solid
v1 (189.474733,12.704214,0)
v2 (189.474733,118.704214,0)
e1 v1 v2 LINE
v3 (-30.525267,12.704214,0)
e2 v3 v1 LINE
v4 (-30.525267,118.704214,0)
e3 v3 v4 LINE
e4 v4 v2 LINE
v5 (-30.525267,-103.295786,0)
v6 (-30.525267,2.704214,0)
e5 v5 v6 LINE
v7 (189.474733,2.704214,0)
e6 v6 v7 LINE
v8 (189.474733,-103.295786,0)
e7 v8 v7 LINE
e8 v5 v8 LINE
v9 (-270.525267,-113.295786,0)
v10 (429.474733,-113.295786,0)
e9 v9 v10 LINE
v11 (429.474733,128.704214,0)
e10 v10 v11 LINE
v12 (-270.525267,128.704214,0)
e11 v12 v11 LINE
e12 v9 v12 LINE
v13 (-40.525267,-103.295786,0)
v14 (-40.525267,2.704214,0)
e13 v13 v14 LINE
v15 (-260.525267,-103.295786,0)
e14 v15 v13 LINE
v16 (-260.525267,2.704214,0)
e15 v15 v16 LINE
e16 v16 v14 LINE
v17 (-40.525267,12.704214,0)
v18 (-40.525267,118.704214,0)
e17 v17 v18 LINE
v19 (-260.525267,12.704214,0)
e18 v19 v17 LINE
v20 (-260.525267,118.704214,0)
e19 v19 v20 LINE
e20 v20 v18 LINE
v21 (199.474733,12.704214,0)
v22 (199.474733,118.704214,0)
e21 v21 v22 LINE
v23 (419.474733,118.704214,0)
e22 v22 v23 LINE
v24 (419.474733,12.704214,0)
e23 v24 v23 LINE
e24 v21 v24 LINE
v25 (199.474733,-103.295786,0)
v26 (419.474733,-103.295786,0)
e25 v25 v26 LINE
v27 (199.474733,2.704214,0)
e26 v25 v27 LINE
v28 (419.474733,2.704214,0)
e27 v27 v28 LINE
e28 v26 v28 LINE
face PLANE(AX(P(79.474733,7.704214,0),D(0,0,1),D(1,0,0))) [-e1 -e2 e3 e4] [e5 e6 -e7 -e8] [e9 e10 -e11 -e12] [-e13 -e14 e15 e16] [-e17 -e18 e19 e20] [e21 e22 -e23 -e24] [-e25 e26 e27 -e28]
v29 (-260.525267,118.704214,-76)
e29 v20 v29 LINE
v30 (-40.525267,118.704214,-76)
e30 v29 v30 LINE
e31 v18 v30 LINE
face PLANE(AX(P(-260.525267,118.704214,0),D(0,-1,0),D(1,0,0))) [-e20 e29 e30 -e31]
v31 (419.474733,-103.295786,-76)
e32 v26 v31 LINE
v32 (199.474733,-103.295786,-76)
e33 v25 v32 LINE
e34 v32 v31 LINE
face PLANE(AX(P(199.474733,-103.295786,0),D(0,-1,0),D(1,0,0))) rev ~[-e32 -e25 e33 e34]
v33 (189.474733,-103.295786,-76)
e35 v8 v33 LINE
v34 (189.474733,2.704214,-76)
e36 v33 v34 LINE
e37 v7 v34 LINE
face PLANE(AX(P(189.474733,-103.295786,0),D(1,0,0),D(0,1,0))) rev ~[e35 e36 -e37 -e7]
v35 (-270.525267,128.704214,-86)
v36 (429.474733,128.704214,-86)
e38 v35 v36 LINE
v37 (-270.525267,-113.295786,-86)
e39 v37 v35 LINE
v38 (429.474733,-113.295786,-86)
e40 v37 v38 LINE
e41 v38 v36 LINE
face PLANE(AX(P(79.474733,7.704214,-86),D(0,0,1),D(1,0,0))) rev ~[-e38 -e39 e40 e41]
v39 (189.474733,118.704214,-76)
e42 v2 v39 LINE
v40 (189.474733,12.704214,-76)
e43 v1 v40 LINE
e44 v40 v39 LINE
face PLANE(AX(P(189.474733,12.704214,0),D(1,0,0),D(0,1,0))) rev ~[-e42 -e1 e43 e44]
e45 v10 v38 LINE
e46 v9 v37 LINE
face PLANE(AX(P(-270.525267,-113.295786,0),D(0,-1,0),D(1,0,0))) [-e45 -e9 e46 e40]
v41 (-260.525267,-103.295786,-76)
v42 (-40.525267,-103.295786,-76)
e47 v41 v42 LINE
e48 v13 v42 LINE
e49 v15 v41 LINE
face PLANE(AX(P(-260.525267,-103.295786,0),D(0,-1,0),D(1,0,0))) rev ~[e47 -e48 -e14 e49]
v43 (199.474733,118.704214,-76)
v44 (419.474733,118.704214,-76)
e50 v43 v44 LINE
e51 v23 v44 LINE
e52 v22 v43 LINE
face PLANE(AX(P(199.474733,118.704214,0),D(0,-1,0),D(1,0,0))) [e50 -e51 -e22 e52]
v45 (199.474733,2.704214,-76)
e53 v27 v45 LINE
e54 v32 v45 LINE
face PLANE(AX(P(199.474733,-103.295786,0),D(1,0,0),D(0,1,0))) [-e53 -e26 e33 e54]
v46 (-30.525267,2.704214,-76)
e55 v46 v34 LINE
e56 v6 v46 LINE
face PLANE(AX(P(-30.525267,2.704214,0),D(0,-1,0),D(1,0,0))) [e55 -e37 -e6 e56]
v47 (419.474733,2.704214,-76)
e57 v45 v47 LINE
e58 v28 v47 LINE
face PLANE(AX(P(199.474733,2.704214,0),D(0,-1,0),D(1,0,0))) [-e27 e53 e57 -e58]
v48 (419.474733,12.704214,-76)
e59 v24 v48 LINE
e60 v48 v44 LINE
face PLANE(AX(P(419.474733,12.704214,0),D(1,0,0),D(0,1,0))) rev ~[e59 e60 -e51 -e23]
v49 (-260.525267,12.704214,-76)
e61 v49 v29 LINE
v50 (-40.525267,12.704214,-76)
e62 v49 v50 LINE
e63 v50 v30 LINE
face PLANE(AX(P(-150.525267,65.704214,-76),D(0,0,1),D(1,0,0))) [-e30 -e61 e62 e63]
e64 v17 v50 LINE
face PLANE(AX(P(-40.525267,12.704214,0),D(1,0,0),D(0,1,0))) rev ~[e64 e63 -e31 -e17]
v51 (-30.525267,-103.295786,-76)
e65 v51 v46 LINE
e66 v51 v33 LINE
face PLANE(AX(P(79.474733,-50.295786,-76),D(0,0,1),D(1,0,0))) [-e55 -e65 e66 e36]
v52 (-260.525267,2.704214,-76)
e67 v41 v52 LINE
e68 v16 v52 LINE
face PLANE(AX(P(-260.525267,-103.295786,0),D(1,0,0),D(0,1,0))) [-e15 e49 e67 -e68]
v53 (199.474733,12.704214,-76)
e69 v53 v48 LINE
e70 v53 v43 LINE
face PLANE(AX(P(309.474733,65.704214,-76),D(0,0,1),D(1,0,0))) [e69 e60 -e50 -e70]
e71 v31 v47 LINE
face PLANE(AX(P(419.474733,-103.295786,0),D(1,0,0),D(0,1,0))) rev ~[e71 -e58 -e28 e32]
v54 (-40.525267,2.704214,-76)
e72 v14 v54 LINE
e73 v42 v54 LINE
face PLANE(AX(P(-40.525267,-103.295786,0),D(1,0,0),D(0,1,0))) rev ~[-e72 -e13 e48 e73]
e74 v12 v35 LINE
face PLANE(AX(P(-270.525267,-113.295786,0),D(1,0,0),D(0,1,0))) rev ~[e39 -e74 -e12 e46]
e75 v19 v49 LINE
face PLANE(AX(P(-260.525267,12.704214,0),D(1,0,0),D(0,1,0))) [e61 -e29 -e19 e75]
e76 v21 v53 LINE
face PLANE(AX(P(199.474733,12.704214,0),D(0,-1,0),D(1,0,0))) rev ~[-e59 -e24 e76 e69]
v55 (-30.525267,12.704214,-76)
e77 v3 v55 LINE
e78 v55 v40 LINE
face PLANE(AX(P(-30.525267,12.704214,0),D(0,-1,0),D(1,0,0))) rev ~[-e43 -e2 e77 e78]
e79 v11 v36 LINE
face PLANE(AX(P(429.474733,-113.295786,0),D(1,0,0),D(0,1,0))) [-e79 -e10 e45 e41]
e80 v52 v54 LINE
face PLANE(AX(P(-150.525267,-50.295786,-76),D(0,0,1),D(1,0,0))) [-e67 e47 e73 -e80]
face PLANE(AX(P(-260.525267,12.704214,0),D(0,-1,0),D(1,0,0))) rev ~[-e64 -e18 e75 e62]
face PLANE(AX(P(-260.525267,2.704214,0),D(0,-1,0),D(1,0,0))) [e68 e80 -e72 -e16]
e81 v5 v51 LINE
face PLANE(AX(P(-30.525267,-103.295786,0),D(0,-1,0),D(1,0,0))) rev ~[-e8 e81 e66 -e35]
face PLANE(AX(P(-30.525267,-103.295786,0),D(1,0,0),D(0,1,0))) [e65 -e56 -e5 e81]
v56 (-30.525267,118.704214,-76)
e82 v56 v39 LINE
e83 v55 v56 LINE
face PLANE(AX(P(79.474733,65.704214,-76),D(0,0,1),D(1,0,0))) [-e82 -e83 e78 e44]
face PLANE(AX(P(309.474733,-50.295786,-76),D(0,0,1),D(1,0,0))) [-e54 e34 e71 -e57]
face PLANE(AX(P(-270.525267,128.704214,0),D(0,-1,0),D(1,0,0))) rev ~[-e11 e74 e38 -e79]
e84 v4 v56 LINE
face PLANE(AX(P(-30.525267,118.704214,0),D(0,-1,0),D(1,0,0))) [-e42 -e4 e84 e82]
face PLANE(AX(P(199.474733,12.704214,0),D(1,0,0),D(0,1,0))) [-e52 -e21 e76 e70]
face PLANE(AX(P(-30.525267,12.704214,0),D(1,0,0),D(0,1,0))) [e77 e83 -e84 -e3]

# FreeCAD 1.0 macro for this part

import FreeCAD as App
import Part
import Sketcher

V = App.Vector

doc = App.newDocument("Part")
body = doc.addObject("PartDesign::Body", "Body")

# Sketch on XY plane
sketch1 = body.newObject("Sketcher::SketchObject", "Sketch")
sketch1.AttachmentSupport = (doc.getObject("XY_Plane"), [""])
sketch1.MapMode = "FlatFace"
sketch1.addGeometry([
    Part.LineSegment(V(-271, 129, 0), V(-271, -113, 0)),
    Part.LineSegment(V(-271, -113, 0), V(429, -113, 0)),
    Part.LineSegment(V(429, -113, 0), V(429, 129, 0)),
    Part.LineSegment(V(429, 129, 0), V(-271, 129, 0)),
], False)
sketch1.addConstraint([
    Sketcher.Constraint("Coincident", 0, 2, 1, 1),
    Sketcher.Constraint("Coincident", 1, 2, 2, 1),
    Sketcher.Constraint("Coincident", 2, 2, 3, 1),
    Sketcher.Constraint("Coincident", 3, 2, 0, 1),
    Sketcher.Constraint("Vertical", 0),
    Sketcher.Constraint("Horizontal", 1),
    Sketcher.Constraint("Vertical", 2),
    Sketcher.Constraint("Horizontal", 3),
    Sketcher.Constraint("DistanceX", 1, 1, 1, 2, 700.0),
    Sketcher.Constraint("DistanceY", 0, 2, 0, 1, 242.0),
    Sketcher.Constraint("DistanceX", 0, 2, -1, 1, 270.525267),
    Sketcher.Constraint("DistanceY", 0, 2, -1, 1, 113.295786),
])
pad1 = body.newObject("PartDesign::Pad", "Pad")
pad1.Profile = sketch1
pad1.Length = 86
pad1.Reversed = True

# Sketch on XY plane
sketch2 = body.newObject("Sketcher::SketchObject", "Sketch001")
sketch2.AttachmentSupport = (doc.getObject("XY_Plane"), [""])
sketch2.MapMode = "FlatFace"
sketch2.addGeometry([
    Part.LineSegment(V(-261, 119, 0), V(-261, 13, 0)),  # 0
    Part.LineSegment(V(-261, 13, 0), V(-41, 13, 0)),  # 1
    Part.LineSegment(V(-41, 13, 0), V(-41, 119, 0)),  # 2
    Part.LineSegment(V(-41, 119, 0), V(-261, 119, 0)),  # 3
    Part.LineSegment(V(-261, 3, 0), V(-261, -103, 0)),  # 4
    Part.LineSegment(V(-261, -103, 0), V(-41, -103, 0)),  # 5
    Part.LineSegment(V(-41, -103, 0), V(-41, 3, 0)),  # 6
    Part.LineSegment(V(-41, 3, 0), V(-261, 3, 0)),  # 7
    Part.LineSegment(V(-31, 119, 0), V(-31, 13, 0)),  # 8
    Part.LineSegment(V(-31, 13, 0), V(189, 13, 0)),  # 9
    Part.LineSegment(V(189, 13, 0), V(189, 119, 0)),  # 10
    Part.LineSegment(V(189, 119, 0), V(-31, 119, 0)),  # 11
    Part.LineSegment(V(-31, 3, 0), V(-31, -103, 0)),  # 12
    Part.LineSegment(V(-31, -103, 0), V(189, -103, 0)),  # 13
    Part.LineSegment(V(189, -103, 0), V(189, 3, 0)),  # 14
    Part.LineSegment(V(189, 3, 0), V(-31, 3, 0)),  # 15
    Part.LineSegment(V(199, 119, 0), V(199, 13, 0)),  # 16
    Part.LineSegment(V(199, 13, 0), V(419, 13, 0)),  # 17
    Part.LineSegment(V(419, 13, 0), V(419, 119, 0)),  # 18
    Part.LineSegment(V(419, 119, 0), V(199, 119, 0)),  # 19
    Part.LineSegment(V(199, 3, 0), V(199, -103, 0)),  # 20
    Part.LineSegment(V(199, -103, 0), V(419, -103, 0)),  # 21
    Part.LineSegment(V(419, -103, 0), V(419, 3, 0)),  # 22
    Part.LineSegment(V(419, 3, 0), V(199, 3, 0)),  # 23
], False)
sketch2.addConstraint([
    Sketcher.Constraint("Coincident", 0, 2, 1, 1),
    Sketcher.Constraint("Coincident", 1, 2, 2, 1),
    Sketcher.Constraint("Coincident", 2, 2, 3, 1),
    Sketcher.Constraint("Coincident", 3, 2, 0, 1),
    Sketcher.Constraint("Coincident", 4, 2, 5, 1),
    Sketcher.Constraint("Coincident", 5, 2, 6, 1),
    Sketcher.Constraint("Coincident", 6, 2, 7, 1),
    Sketcher.Constraint("Coincident", 7, 2, 4, 1),
    Sketcher.Constraint("Coincident", 8, 2, 9, 1),
    Sketcher.Constraint("Coincident", 9, 2, 10, 1),
    Sketcher.Constraint("Coincident", 10, 2, 11, 1),
    Sketcher.Constraint("Coincident", 11, 2, 8, 1),
    Sketcher.Constraint("Coincident", 12, 2, 13, 1),
    Sketcher.Constraint("Coincident", 13, 2, 14, 1),
    Sketcher.Constraint("Coincident", 14, 2, 15, 1),
    Sketcher.Constraint("Coincident", 15, 2, 12, 1),
    Sketcher.Constraint("Coincident", 16, 2, 17, 1),
    Sketcher.Constraint("Coincident", 17, 2, 18, 1),
    Sketcher.Constraint("Coincident", 18, 2, 19, 1),
    Sketcher.Constraint("Coincident", 19, 2, 16, 1),
    Sketcher.Constraint("Coincident", 20, 2, 21, 1),
    Sketcher.Constraint("Coincident", 21, 2, 22, 1),
    Sketcher.Constraint("Coincident", 22, 2, 23, 1),
    Sketcher.Constraint("Coincident", 23, 2, 20, 1),
    Sketcher.Constraint("Vertical", 0),
    Sketcher.Constraint("Horizontal", 1),
    Sketcher.Constraint("Vertical", 2),
    Sketcher.Constraint("Horizontal", 3),
    Sketcher.Constraint("Vertical", 4),
    Sketcher.Constraint("Horizontal", 5),
    Sketcher.Constraint("Vertical", 6),
    Sketcher.Constraint("Horizontal", 7),
    Sketcher.Constraint("Vertical", 8),
    Sketcher.Constraint("Horizontal", 9),
    Sketcher.Constraint("Vertical", 10),
    Sketcher.Constraint("Horizontal", 11),
    Sketcher.Constraint("Vertical", 12),
    Sketcher.Constraint("Horizontal", 13),
    Sketcher.Constraint("Vertical", 14),
    Sketcher.Constraint("Horizontal", 15),
    Sketcher.Constraint("Vertical", 16),
    Sketcher.Constraint("Horizontal", 17),
    Sketcher.Constraint("Vertical", 18),
    Sketcher.Constraint("Horizontal", 19),
    Sketcher.Constraint("Vertical", 20),
    Sketcher.Constraint("Horizontal", 21),
    Sketcher.Constraint("Vertical", 22),
    Sketcher.Constraint("Horizontal", 23),
    Sketcher.Constraint("Horizontal", 1, 2, 8, 2),
    Sketcher.Constraint("Horizontal", 3, 2, 10, 2),
    Sketcher.Constraint("Horizontal", 5, 2, 12, 2),
    Sketcher.Constraint("Horizontal", 7, 2, 14, 2),
    Sketcher.Constraint("Horizontal", 9, 2, 16, 2),
    Sketcher.Constraint("Horizontal", 11, 2, 18, 2),
    Sketcher.Constraint("Horizontal", 13, 2, 20, 2),
    Sketcher.Constraint("Horizontal", 15, 2, 22, 2),
    Sketcher.Constraint("Vertical", 3, 2, 4, 2),
    Sketcher.Constraint("Vertical", 2, 2, 5, 2),
    Sketcher.Constraint("Vertical", 11, 2, 12, 2),
    Sketcher.Constraint("Vertical", 10, 2, 13, 2),
    Sketcher.Constraint("Vertical", 19, 2, 20, 2),
    Sketcher.Constraint("Vertical", 18, 2, 21, 2),
    Sketcher.Constraint("Equal", 7, 9),
    Sketcher.Constraint("Equal", 15, 17),
    Sketcher.Constraint("Equal", 2, 4),
    Sketcher.Constraint("DistanceX", 1, 1, 1, 2, 220.0),
    Sketcher.Constraint("DistanceY", 0, 2, 0, 1, 106.0),
    Sketcher.Constraint("DistanceY", 4, 2, 0, 2, 116.0),
    Sketcher.Constraint("DistanceX", 1, 2, 8, 2, 10.0),
    Sketcher.Constraint("DistanceX", 9, 2, 16, 2, 10.0),
    Sketcher.Constraint("DistanceX", 0, 2, -1, 1, 260.525267),
    Sketcher.Constraint("DistanceY", -1, 1, 0, 2, 12.704214),
])
pocket1 = body.newObject("PartDesign::Pocket", "Pocket")
pocket1.Profile = sketch2
pocket1.Length = 76

doc.recompute()
